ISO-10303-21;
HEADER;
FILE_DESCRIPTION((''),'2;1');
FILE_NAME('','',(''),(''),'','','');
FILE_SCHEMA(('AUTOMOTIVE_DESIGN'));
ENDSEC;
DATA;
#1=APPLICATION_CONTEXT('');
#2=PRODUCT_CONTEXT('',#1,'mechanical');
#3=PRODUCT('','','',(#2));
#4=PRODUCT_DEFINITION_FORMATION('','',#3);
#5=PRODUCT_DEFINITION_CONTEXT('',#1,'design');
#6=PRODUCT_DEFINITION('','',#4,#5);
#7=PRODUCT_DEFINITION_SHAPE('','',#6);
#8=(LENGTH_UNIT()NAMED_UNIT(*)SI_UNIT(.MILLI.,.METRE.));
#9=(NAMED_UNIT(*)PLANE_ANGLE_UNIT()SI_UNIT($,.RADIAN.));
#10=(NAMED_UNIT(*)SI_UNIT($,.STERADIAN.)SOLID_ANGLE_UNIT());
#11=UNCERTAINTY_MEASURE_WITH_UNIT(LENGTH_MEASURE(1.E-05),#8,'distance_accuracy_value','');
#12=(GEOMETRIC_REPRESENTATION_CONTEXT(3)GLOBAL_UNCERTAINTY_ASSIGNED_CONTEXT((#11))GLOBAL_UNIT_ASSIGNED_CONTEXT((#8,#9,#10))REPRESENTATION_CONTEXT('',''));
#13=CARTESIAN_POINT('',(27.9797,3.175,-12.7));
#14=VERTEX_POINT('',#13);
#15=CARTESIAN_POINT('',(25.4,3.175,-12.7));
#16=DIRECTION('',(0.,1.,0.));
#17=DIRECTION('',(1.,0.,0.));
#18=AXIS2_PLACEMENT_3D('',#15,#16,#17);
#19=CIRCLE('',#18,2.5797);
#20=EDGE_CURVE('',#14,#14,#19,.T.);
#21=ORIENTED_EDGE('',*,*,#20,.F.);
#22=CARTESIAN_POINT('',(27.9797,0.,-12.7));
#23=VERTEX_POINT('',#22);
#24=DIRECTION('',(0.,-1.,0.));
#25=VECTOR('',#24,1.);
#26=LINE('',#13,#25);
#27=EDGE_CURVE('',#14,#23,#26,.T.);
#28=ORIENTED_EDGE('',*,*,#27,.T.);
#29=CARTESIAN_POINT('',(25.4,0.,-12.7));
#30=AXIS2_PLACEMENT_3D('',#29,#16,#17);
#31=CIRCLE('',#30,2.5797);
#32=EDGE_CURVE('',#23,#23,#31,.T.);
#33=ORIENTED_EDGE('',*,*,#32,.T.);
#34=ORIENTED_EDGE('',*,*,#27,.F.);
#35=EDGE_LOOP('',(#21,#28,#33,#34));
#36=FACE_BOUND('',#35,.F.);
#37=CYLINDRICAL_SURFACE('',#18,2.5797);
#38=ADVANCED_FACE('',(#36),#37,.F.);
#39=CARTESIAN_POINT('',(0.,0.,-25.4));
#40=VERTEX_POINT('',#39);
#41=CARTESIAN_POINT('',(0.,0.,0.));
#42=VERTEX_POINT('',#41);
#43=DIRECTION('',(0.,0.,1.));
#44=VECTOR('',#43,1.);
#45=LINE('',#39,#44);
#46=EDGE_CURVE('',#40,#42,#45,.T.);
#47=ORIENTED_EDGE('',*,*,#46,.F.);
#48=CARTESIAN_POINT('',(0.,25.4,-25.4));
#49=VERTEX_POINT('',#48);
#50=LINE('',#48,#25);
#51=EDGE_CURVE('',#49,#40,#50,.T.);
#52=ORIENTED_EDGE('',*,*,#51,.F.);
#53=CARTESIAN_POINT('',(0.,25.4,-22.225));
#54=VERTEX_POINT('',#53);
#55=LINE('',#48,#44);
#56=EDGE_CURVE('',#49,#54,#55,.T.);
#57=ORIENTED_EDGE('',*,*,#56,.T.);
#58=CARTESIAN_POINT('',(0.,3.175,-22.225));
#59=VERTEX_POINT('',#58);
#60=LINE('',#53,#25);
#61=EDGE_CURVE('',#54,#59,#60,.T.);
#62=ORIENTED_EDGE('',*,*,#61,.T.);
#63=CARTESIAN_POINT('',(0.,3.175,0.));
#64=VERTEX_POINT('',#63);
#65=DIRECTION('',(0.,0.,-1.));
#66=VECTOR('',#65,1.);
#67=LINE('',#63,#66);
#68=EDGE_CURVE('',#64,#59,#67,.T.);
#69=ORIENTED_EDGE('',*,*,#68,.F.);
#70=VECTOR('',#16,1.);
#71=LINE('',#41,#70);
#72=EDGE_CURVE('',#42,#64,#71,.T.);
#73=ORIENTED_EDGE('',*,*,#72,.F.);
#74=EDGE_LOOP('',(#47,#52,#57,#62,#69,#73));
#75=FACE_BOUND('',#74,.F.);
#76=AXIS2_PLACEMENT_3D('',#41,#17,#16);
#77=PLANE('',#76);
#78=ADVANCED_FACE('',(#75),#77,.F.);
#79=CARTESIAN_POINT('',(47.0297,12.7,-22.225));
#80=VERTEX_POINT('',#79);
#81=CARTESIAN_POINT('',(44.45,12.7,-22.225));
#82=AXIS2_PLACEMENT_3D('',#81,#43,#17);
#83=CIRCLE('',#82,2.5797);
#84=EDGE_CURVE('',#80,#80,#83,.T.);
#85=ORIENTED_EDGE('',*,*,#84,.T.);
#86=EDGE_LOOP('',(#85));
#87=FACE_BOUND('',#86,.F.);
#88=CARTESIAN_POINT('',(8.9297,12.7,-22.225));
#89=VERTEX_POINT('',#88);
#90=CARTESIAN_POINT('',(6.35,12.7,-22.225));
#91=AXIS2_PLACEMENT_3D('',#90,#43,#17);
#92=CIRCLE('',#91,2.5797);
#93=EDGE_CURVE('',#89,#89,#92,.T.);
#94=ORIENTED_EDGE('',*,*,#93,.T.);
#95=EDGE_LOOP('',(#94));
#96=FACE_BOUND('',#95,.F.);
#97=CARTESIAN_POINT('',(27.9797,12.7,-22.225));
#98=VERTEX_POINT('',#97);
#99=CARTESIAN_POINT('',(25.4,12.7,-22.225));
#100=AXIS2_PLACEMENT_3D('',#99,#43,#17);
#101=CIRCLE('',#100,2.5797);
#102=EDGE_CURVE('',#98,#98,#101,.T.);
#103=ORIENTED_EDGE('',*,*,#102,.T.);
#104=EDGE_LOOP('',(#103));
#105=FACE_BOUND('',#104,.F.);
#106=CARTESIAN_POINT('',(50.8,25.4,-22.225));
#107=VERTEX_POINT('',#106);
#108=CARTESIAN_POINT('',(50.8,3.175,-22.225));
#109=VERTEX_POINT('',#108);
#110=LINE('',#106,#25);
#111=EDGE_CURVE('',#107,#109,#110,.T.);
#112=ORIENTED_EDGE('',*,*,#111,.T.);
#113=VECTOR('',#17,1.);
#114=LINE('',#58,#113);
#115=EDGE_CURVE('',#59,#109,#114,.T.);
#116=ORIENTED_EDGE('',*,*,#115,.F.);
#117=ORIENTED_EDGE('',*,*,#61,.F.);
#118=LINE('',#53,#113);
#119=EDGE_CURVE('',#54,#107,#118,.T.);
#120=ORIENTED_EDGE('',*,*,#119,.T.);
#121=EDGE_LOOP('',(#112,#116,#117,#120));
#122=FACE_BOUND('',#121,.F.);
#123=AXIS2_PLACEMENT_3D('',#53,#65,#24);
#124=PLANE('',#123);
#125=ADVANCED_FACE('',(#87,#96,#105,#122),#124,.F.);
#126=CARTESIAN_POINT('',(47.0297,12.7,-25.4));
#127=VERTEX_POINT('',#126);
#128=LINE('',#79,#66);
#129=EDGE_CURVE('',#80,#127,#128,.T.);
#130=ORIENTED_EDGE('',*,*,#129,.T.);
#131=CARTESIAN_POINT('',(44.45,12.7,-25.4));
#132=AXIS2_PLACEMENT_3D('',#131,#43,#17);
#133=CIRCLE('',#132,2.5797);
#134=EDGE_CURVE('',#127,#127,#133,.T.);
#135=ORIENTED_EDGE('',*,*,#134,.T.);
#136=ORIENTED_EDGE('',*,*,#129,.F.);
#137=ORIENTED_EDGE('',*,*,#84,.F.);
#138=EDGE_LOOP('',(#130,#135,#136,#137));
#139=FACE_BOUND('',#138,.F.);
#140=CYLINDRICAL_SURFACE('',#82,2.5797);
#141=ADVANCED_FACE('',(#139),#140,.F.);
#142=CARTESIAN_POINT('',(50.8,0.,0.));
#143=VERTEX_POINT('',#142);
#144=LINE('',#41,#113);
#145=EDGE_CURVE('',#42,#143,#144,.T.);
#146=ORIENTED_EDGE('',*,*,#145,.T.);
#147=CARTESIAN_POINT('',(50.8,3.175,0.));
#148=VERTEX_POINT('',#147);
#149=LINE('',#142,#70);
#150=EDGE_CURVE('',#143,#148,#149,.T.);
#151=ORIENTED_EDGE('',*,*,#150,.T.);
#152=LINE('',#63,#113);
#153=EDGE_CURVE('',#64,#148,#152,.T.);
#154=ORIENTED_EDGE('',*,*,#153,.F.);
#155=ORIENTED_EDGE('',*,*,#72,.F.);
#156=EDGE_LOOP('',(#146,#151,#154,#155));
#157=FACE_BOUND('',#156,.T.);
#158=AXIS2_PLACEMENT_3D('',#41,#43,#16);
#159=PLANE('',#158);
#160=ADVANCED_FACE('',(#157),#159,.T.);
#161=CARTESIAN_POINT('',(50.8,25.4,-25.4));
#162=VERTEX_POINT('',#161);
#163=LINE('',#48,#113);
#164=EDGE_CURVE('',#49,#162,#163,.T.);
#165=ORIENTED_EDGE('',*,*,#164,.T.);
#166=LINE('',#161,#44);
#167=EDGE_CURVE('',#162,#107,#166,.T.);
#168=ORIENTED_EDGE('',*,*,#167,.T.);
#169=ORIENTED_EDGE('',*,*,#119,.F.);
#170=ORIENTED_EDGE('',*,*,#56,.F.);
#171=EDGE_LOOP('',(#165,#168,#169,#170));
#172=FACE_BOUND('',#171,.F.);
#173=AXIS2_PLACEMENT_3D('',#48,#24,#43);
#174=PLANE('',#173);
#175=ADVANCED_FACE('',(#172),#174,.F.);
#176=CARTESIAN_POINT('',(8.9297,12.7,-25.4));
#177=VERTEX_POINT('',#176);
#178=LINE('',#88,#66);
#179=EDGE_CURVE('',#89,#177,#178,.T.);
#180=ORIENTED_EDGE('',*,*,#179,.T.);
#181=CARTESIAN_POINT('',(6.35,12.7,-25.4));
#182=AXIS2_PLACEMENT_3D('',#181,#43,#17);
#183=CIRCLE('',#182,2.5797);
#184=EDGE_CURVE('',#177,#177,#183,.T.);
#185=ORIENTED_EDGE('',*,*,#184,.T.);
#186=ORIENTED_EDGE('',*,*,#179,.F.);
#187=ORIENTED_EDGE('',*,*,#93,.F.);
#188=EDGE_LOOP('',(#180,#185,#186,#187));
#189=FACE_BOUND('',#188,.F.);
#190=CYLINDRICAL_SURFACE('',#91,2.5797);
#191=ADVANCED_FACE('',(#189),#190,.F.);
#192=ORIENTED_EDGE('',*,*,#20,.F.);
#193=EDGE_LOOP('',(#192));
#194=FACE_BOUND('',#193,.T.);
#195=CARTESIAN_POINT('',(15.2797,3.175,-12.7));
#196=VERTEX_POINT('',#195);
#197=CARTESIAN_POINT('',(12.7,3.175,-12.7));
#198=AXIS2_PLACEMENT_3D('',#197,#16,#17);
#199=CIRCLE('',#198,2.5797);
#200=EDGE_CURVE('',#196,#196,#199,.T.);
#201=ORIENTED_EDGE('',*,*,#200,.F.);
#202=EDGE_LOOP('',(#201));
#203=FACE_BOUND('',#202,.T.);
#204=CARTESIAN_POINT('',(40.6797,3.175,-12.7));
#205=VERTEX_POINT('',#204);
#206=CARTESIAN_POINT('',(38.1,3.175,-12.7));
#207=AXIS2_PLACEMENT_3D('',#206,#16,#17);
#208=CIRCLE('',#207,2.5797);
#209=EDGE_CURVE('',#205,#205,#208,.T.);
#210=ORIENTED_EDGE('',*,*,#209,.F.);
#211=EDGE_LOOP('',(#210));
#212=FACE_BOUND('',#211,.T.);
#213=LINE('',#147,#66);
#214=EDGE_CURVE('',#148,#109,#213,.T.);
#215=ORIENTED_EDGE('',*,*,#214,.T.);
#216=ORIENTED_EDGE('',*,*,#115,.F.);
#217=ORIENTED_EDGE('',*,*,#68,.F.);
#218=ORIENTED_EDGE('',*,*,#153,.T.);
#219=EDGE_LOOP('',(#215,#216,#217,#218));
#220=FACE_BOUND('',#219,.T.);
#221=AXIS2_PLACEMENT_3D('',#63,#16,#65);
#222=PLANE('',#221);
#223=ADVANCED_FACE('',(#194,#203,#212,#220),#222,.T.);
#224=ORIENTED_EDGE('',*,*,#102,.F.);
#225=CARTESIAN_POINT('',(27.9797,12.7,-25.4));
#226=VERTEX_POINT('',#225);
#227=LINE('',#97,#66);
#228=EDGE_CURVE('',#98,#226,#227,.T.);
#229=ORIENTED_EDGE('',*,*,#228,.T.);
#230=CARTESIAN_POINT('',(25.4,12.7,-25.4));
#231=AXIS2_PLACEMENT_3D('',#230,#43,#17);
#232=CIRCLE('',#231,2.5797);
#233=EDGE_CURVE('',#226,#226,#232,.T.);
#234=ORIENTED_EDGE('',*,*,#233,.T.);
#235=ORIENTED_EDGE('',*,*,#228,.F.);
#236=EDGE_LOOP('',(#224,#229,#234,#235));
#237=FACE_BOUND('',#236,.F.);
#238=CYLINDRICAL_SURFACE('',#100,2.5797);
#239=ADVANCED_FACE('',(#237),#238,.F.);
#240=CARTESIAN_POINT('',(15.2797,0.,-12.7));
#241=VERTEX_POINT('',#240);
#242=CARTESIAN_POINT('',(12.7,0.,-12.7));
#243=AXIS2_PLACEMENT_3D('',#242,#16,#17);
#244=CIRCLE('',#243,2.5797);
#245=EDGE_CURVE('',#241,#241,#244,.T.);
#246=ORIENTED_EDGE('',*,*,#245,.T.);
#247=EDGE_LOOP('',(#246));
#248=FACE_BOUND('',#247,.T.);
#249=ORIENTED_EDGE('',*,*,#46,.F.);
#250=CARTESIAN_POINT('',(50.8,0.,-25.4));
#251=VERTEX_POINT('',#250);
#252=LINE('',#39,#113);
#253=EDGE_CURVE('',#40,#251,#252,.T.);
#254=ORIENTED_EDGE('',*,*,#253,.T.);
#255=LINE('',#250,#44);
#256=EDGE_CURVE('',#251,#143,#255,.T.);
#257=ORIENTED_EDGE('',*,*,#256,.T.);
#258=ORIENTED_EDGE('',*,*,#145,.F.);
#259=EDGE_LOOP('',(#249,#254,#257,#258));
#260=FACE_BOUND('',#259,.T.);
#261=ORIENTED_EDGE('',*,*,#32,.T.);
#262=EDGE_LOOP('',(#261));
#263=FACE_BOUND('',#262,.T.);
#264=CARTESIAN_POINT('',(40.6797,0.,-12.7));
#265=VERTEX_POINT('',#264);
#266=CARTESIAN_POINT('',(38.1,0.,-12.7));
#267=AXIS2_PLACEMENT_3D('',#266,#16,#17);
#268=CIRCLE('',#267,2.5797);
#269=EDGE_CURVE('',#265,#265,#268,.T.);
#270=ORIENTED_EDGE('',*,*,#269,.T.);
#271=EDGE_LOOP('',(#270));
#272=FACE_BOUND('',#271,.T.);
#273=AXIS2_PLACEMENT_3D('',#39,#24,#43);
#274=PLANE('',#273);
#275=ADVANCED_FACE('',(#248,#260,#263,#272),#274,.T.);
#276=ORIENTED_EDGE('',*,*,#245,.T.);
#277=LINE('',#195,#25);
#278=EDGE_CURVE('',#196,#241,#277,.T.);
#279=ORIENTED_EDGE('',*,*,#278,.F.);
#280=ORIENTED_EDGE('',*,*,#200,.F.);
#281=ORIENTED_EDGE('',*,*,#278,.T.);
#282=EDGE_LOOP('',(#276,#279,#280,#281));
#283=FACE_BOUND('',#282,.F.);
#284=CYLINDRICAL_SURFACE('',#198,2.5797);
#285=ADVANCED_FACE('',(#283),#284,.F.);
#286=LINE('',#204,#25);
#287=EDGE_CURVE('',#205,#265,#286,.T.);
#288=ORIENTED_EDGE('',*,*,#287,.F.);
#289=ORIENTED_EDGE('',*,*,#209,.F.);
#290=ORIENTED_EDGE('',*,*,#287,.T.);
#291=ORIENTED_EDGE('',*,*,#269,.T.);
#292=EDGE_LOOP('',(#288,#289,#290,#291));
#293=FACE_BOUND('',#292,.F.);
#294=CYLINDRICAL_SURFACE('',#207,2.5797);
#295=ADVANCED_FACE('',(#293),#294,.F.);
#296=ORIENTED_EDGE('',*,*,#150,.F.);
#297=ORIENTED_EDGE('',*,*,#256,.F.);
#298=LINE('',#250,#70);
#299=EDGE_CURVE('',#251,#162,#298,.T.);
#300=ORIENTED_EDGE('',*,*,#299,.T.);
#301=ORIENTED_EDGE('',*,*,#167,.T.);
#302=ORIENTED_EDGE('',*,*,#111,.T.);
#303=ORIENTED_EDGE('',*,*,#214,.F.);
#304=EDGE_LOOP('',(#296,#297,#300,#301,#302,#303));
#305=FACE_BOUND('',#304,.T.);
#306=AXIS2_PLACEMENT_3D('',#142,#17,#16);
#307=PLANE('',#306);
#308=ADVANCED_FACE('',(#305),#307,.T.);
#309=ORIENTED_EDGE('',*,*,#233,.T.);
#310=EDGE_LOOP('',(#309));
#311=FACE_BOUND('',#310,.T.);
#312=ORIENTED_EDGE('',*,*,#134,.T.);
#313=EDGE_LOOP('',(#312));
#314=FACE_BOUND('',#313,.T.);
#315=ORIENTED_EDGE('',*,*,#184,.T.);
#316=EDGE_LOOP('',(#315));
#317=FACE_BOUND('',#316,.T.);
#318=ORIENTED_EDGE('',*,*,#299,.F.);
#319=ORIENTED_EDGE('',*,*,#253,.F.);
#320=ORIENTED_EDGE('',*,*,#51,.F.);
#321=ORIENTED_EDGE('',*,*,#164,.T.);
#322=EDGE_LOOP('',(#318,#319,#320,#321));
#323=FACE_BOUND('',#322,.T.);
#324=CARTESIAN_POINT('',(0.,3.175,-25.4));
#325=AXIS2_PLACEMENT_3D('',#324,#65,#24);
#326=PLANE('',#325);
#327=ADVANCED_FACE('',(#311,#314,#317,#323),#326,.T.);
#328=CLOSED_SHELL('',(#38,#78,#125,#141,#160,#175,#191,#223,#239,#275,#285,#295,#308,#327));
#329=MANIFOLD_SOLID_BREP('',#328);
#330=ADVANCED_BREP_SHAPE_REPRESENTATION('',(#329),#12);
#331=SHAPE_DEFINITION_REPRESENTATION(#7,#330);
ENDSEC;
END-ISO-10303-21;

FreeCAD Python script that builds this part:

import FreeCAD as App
import Part
import Sketcher

V = App.Vector
Q = App.Units.Quantity

doc = App.newDocument("Part")
body = doc.addObject("PartDesign::Body", "Body")

sketch1 = body.newObject("Sketcher::SketchObject", "Sketch")
sketch1.AttachmentSupport = (doc.getObject("YZ_Plane"), [""])
sketch1.MapMode = "FlatFace"
sketch1.addGeometry(Part.LineSegment(V(3.2, 0, 0), V(0, 0, 0)), False)
sketch1.addGeometry(Part.LineSegment(V(0, 0, 0), V(0, -25.4, 0)), False)
sketch1.addGeometry(Part.LineSegment(V(0, -25.4, 0), V(25.4, -25.4, 0)), False)
sketch1.addGeometry(Part.LineSegment(V(25.4, -25.4, 0), V(25.4, -22.2, 0)), False)
sketch1.addGeometry(Part.LineSegment(V(25.4, -22.2, 0), V(3.2, -22.2, 0)), False)
sketch1.addGeometry(Part.LineSegment(V(3.2, -22.2, 0), V(3.2, 0, 0)), False)
sketch1.addConstraint(Sketcher.Constraint("Coincident", 0, 2, 1, 1))
sketch1.addConstraint(Sketcher.Constraint("Coincident", 1, 2, 2, 1))
sketch1.addConstraint(Sketcher.Constraint("Coincident", 2, 2, 3, 1))
sketch1.addConstraint(Sketcher.Constraint("Coincident", 3, 2, 4, 1))
sketch1.addConstraint(Sketcher.Constraint("Coincident", 4, 2, 5, 1))
sketch1.addConstraint(Sketcher.Constraint("Coincident", 5, 2, 0, 1))
sketch1.addConstraint(Sketcher.Constraint("Horizontal", 0))
sketch1.addConstraint(Sketcher.Constraint("Vertical", 1))
sketch1.addConstraint(Sketcher.Constraint("Horizontal", 2))
sketch1.addConstraint(Sketcher.Constraint("Vertical", 3))
sketch1.addConstraint(Sketcher.Constraint("Horizontal", 4))
sketch1.addConstraint(Sketcher.Constraint("Vertical", 5))
sketch1.addConstraint(Sketcher.Constraint("Coincident", 0, 2, -1, 1))
sketch1.addConstraint(Sketcher.Constraint("Equal", 2, 1))
sketch1.addConstraint(Sketcher.Constraint("Equal", 0, 3))
sketch1.addConstraint(Sketcher.Constraint("DistanceX", 2, 1, 2, 2, Q("1 in")))
sketch1.addConstraint(Sketcher.Constraint("DistanceX", 0, 2, 0, 1, Q("0.125 in")))
pad1 = body.newObject("PartDesign::Pad", "Pad")
pad1.Profile = sketch1
pad1.Length = Q("2 in")

sketch2 = body.newObject("Sketcher::SketchObject", "Sketch001")
sketch2.AttachmentSupport = (doc.getObject("XZ_Plane"), [""])
sketch2.MapMode = "FlatFace"
sketch2.AttachmentOffset = App.Placement(V(0, 0, -0.125 * 25.4), App.Rotation())
sketch2.addGeometry(Part.Circle(V(12.7, -12.7, 0), V(0, 0, 1), 2.6), False)
sketch2.addGeometry(Part.Circle(V(25.4, -12.7, 0), V(0, 0, 1), 2.6), False)
sketch2.addGeometry(Part.Circle(V(38.1, -12.7, 0), V(0, 0, 1), 2.6), False)
sketch2.addConstraint(Sketcher.Constraint("Equal", 0, 1))
sketch2.addConstraint(Sketcher.Constraint("Equal", 1, 2))
sketch2.addConstraint(Sketcher.Constraint("Horizontal", 0, 3, 1, 3))
sketch2.addConstraint(Sketcher.Constraint("Horizontal", 1, 3, 2, 3))
sketch2.addConstraint(Sketcher.Constraint("Diameter", 0, Q("0.203126 in")))
sketch2.addConstraint(Sketcher.Constraint("DistanceX", -1, 1, 0, 3, Q("0.5 in")))
sketch2.addConstraint(Sketcher.Constraint("DistanceY", 0, 3, -1, 1, Q("0.5 in")))
sketch2.addConstraint(Sketcher.Constraint("DistanceX", 0, 3, 1, 3, Q("0.5 in")))
sketch2.addConstraint(Sketcher.Constraint("DistanceX", 1, 3, 2, 3, Q("0.5 in")))
pocket1 = body.newObject("PartDesign::Pocket", "Pocket")
pocket1.Profile = sketch2
pocket1.Length = Q("2 in")
pocket1.Reversed = True

sketch3 = body.newObject("Sketcher::SketchObject", "Sketch002")
sketch3.AttachmentSupport = (doc.getObject("XY_Plane"), [""])
sketch3.MapMode = "FlatFace"
sketch3.AttachmentOffset = App.Placement(V(0, 0, -0.875 * 25.4), App.Rotation())
sketch3.addGeometry(Part.Circle(V(25.4, 12.7, 0), V(0, 0, 1), 2.6), False)
sketch3.addGeometry(Part.Circle(V(44.5, 12.7, 0), V(0, 0, 1), 2.6), False)
sketch3.addGeometry(Part.Circle(V(6.3, 12.7, 0), V(0, 0, 1), 2.6), False)
sketch3.addConstraint(Sketcher.Constraint("Equal", 0, 1))
sketch3.addConstraint(Sketcher.Constraint("Equal", 1, 2))
sketch3.addConstraint(Sketcher.Constraint("Horizontal", 0, 3, 1, 3))
sketch3.addConstraint(Sketcher.Constraint("Horizontal", 1, 3, 2, 3))
sketch3.addConstraint(Sketcher.Constraint("Diameter", 0, Q("0.203126 in")))
sketch3.addConstraint(Sketcher.Constraint("DistanceY", -1, 1, 0, 3, Q("0.5 in")))
sketch3.addConstraint(Sketcher.Constraint("DistanceX", 0, 3, 1, 3, Q("0.75 in")))
sketch3.addConstraint(Sketcher.Constraint("DistanceX", 2, 3, 0, 3, Q("0.75 in")))
sketch3.addConstraint(Sketcher.Constraint("DistanceX", -1, 1, 0, 3, Q("1 in")))
pocket2 = body.newObject("PartDesign::Pocket", "Pocket001")
pocket2.Profile = sketch3
pocket2.Length = Q("2 in")

doc.recompute()
